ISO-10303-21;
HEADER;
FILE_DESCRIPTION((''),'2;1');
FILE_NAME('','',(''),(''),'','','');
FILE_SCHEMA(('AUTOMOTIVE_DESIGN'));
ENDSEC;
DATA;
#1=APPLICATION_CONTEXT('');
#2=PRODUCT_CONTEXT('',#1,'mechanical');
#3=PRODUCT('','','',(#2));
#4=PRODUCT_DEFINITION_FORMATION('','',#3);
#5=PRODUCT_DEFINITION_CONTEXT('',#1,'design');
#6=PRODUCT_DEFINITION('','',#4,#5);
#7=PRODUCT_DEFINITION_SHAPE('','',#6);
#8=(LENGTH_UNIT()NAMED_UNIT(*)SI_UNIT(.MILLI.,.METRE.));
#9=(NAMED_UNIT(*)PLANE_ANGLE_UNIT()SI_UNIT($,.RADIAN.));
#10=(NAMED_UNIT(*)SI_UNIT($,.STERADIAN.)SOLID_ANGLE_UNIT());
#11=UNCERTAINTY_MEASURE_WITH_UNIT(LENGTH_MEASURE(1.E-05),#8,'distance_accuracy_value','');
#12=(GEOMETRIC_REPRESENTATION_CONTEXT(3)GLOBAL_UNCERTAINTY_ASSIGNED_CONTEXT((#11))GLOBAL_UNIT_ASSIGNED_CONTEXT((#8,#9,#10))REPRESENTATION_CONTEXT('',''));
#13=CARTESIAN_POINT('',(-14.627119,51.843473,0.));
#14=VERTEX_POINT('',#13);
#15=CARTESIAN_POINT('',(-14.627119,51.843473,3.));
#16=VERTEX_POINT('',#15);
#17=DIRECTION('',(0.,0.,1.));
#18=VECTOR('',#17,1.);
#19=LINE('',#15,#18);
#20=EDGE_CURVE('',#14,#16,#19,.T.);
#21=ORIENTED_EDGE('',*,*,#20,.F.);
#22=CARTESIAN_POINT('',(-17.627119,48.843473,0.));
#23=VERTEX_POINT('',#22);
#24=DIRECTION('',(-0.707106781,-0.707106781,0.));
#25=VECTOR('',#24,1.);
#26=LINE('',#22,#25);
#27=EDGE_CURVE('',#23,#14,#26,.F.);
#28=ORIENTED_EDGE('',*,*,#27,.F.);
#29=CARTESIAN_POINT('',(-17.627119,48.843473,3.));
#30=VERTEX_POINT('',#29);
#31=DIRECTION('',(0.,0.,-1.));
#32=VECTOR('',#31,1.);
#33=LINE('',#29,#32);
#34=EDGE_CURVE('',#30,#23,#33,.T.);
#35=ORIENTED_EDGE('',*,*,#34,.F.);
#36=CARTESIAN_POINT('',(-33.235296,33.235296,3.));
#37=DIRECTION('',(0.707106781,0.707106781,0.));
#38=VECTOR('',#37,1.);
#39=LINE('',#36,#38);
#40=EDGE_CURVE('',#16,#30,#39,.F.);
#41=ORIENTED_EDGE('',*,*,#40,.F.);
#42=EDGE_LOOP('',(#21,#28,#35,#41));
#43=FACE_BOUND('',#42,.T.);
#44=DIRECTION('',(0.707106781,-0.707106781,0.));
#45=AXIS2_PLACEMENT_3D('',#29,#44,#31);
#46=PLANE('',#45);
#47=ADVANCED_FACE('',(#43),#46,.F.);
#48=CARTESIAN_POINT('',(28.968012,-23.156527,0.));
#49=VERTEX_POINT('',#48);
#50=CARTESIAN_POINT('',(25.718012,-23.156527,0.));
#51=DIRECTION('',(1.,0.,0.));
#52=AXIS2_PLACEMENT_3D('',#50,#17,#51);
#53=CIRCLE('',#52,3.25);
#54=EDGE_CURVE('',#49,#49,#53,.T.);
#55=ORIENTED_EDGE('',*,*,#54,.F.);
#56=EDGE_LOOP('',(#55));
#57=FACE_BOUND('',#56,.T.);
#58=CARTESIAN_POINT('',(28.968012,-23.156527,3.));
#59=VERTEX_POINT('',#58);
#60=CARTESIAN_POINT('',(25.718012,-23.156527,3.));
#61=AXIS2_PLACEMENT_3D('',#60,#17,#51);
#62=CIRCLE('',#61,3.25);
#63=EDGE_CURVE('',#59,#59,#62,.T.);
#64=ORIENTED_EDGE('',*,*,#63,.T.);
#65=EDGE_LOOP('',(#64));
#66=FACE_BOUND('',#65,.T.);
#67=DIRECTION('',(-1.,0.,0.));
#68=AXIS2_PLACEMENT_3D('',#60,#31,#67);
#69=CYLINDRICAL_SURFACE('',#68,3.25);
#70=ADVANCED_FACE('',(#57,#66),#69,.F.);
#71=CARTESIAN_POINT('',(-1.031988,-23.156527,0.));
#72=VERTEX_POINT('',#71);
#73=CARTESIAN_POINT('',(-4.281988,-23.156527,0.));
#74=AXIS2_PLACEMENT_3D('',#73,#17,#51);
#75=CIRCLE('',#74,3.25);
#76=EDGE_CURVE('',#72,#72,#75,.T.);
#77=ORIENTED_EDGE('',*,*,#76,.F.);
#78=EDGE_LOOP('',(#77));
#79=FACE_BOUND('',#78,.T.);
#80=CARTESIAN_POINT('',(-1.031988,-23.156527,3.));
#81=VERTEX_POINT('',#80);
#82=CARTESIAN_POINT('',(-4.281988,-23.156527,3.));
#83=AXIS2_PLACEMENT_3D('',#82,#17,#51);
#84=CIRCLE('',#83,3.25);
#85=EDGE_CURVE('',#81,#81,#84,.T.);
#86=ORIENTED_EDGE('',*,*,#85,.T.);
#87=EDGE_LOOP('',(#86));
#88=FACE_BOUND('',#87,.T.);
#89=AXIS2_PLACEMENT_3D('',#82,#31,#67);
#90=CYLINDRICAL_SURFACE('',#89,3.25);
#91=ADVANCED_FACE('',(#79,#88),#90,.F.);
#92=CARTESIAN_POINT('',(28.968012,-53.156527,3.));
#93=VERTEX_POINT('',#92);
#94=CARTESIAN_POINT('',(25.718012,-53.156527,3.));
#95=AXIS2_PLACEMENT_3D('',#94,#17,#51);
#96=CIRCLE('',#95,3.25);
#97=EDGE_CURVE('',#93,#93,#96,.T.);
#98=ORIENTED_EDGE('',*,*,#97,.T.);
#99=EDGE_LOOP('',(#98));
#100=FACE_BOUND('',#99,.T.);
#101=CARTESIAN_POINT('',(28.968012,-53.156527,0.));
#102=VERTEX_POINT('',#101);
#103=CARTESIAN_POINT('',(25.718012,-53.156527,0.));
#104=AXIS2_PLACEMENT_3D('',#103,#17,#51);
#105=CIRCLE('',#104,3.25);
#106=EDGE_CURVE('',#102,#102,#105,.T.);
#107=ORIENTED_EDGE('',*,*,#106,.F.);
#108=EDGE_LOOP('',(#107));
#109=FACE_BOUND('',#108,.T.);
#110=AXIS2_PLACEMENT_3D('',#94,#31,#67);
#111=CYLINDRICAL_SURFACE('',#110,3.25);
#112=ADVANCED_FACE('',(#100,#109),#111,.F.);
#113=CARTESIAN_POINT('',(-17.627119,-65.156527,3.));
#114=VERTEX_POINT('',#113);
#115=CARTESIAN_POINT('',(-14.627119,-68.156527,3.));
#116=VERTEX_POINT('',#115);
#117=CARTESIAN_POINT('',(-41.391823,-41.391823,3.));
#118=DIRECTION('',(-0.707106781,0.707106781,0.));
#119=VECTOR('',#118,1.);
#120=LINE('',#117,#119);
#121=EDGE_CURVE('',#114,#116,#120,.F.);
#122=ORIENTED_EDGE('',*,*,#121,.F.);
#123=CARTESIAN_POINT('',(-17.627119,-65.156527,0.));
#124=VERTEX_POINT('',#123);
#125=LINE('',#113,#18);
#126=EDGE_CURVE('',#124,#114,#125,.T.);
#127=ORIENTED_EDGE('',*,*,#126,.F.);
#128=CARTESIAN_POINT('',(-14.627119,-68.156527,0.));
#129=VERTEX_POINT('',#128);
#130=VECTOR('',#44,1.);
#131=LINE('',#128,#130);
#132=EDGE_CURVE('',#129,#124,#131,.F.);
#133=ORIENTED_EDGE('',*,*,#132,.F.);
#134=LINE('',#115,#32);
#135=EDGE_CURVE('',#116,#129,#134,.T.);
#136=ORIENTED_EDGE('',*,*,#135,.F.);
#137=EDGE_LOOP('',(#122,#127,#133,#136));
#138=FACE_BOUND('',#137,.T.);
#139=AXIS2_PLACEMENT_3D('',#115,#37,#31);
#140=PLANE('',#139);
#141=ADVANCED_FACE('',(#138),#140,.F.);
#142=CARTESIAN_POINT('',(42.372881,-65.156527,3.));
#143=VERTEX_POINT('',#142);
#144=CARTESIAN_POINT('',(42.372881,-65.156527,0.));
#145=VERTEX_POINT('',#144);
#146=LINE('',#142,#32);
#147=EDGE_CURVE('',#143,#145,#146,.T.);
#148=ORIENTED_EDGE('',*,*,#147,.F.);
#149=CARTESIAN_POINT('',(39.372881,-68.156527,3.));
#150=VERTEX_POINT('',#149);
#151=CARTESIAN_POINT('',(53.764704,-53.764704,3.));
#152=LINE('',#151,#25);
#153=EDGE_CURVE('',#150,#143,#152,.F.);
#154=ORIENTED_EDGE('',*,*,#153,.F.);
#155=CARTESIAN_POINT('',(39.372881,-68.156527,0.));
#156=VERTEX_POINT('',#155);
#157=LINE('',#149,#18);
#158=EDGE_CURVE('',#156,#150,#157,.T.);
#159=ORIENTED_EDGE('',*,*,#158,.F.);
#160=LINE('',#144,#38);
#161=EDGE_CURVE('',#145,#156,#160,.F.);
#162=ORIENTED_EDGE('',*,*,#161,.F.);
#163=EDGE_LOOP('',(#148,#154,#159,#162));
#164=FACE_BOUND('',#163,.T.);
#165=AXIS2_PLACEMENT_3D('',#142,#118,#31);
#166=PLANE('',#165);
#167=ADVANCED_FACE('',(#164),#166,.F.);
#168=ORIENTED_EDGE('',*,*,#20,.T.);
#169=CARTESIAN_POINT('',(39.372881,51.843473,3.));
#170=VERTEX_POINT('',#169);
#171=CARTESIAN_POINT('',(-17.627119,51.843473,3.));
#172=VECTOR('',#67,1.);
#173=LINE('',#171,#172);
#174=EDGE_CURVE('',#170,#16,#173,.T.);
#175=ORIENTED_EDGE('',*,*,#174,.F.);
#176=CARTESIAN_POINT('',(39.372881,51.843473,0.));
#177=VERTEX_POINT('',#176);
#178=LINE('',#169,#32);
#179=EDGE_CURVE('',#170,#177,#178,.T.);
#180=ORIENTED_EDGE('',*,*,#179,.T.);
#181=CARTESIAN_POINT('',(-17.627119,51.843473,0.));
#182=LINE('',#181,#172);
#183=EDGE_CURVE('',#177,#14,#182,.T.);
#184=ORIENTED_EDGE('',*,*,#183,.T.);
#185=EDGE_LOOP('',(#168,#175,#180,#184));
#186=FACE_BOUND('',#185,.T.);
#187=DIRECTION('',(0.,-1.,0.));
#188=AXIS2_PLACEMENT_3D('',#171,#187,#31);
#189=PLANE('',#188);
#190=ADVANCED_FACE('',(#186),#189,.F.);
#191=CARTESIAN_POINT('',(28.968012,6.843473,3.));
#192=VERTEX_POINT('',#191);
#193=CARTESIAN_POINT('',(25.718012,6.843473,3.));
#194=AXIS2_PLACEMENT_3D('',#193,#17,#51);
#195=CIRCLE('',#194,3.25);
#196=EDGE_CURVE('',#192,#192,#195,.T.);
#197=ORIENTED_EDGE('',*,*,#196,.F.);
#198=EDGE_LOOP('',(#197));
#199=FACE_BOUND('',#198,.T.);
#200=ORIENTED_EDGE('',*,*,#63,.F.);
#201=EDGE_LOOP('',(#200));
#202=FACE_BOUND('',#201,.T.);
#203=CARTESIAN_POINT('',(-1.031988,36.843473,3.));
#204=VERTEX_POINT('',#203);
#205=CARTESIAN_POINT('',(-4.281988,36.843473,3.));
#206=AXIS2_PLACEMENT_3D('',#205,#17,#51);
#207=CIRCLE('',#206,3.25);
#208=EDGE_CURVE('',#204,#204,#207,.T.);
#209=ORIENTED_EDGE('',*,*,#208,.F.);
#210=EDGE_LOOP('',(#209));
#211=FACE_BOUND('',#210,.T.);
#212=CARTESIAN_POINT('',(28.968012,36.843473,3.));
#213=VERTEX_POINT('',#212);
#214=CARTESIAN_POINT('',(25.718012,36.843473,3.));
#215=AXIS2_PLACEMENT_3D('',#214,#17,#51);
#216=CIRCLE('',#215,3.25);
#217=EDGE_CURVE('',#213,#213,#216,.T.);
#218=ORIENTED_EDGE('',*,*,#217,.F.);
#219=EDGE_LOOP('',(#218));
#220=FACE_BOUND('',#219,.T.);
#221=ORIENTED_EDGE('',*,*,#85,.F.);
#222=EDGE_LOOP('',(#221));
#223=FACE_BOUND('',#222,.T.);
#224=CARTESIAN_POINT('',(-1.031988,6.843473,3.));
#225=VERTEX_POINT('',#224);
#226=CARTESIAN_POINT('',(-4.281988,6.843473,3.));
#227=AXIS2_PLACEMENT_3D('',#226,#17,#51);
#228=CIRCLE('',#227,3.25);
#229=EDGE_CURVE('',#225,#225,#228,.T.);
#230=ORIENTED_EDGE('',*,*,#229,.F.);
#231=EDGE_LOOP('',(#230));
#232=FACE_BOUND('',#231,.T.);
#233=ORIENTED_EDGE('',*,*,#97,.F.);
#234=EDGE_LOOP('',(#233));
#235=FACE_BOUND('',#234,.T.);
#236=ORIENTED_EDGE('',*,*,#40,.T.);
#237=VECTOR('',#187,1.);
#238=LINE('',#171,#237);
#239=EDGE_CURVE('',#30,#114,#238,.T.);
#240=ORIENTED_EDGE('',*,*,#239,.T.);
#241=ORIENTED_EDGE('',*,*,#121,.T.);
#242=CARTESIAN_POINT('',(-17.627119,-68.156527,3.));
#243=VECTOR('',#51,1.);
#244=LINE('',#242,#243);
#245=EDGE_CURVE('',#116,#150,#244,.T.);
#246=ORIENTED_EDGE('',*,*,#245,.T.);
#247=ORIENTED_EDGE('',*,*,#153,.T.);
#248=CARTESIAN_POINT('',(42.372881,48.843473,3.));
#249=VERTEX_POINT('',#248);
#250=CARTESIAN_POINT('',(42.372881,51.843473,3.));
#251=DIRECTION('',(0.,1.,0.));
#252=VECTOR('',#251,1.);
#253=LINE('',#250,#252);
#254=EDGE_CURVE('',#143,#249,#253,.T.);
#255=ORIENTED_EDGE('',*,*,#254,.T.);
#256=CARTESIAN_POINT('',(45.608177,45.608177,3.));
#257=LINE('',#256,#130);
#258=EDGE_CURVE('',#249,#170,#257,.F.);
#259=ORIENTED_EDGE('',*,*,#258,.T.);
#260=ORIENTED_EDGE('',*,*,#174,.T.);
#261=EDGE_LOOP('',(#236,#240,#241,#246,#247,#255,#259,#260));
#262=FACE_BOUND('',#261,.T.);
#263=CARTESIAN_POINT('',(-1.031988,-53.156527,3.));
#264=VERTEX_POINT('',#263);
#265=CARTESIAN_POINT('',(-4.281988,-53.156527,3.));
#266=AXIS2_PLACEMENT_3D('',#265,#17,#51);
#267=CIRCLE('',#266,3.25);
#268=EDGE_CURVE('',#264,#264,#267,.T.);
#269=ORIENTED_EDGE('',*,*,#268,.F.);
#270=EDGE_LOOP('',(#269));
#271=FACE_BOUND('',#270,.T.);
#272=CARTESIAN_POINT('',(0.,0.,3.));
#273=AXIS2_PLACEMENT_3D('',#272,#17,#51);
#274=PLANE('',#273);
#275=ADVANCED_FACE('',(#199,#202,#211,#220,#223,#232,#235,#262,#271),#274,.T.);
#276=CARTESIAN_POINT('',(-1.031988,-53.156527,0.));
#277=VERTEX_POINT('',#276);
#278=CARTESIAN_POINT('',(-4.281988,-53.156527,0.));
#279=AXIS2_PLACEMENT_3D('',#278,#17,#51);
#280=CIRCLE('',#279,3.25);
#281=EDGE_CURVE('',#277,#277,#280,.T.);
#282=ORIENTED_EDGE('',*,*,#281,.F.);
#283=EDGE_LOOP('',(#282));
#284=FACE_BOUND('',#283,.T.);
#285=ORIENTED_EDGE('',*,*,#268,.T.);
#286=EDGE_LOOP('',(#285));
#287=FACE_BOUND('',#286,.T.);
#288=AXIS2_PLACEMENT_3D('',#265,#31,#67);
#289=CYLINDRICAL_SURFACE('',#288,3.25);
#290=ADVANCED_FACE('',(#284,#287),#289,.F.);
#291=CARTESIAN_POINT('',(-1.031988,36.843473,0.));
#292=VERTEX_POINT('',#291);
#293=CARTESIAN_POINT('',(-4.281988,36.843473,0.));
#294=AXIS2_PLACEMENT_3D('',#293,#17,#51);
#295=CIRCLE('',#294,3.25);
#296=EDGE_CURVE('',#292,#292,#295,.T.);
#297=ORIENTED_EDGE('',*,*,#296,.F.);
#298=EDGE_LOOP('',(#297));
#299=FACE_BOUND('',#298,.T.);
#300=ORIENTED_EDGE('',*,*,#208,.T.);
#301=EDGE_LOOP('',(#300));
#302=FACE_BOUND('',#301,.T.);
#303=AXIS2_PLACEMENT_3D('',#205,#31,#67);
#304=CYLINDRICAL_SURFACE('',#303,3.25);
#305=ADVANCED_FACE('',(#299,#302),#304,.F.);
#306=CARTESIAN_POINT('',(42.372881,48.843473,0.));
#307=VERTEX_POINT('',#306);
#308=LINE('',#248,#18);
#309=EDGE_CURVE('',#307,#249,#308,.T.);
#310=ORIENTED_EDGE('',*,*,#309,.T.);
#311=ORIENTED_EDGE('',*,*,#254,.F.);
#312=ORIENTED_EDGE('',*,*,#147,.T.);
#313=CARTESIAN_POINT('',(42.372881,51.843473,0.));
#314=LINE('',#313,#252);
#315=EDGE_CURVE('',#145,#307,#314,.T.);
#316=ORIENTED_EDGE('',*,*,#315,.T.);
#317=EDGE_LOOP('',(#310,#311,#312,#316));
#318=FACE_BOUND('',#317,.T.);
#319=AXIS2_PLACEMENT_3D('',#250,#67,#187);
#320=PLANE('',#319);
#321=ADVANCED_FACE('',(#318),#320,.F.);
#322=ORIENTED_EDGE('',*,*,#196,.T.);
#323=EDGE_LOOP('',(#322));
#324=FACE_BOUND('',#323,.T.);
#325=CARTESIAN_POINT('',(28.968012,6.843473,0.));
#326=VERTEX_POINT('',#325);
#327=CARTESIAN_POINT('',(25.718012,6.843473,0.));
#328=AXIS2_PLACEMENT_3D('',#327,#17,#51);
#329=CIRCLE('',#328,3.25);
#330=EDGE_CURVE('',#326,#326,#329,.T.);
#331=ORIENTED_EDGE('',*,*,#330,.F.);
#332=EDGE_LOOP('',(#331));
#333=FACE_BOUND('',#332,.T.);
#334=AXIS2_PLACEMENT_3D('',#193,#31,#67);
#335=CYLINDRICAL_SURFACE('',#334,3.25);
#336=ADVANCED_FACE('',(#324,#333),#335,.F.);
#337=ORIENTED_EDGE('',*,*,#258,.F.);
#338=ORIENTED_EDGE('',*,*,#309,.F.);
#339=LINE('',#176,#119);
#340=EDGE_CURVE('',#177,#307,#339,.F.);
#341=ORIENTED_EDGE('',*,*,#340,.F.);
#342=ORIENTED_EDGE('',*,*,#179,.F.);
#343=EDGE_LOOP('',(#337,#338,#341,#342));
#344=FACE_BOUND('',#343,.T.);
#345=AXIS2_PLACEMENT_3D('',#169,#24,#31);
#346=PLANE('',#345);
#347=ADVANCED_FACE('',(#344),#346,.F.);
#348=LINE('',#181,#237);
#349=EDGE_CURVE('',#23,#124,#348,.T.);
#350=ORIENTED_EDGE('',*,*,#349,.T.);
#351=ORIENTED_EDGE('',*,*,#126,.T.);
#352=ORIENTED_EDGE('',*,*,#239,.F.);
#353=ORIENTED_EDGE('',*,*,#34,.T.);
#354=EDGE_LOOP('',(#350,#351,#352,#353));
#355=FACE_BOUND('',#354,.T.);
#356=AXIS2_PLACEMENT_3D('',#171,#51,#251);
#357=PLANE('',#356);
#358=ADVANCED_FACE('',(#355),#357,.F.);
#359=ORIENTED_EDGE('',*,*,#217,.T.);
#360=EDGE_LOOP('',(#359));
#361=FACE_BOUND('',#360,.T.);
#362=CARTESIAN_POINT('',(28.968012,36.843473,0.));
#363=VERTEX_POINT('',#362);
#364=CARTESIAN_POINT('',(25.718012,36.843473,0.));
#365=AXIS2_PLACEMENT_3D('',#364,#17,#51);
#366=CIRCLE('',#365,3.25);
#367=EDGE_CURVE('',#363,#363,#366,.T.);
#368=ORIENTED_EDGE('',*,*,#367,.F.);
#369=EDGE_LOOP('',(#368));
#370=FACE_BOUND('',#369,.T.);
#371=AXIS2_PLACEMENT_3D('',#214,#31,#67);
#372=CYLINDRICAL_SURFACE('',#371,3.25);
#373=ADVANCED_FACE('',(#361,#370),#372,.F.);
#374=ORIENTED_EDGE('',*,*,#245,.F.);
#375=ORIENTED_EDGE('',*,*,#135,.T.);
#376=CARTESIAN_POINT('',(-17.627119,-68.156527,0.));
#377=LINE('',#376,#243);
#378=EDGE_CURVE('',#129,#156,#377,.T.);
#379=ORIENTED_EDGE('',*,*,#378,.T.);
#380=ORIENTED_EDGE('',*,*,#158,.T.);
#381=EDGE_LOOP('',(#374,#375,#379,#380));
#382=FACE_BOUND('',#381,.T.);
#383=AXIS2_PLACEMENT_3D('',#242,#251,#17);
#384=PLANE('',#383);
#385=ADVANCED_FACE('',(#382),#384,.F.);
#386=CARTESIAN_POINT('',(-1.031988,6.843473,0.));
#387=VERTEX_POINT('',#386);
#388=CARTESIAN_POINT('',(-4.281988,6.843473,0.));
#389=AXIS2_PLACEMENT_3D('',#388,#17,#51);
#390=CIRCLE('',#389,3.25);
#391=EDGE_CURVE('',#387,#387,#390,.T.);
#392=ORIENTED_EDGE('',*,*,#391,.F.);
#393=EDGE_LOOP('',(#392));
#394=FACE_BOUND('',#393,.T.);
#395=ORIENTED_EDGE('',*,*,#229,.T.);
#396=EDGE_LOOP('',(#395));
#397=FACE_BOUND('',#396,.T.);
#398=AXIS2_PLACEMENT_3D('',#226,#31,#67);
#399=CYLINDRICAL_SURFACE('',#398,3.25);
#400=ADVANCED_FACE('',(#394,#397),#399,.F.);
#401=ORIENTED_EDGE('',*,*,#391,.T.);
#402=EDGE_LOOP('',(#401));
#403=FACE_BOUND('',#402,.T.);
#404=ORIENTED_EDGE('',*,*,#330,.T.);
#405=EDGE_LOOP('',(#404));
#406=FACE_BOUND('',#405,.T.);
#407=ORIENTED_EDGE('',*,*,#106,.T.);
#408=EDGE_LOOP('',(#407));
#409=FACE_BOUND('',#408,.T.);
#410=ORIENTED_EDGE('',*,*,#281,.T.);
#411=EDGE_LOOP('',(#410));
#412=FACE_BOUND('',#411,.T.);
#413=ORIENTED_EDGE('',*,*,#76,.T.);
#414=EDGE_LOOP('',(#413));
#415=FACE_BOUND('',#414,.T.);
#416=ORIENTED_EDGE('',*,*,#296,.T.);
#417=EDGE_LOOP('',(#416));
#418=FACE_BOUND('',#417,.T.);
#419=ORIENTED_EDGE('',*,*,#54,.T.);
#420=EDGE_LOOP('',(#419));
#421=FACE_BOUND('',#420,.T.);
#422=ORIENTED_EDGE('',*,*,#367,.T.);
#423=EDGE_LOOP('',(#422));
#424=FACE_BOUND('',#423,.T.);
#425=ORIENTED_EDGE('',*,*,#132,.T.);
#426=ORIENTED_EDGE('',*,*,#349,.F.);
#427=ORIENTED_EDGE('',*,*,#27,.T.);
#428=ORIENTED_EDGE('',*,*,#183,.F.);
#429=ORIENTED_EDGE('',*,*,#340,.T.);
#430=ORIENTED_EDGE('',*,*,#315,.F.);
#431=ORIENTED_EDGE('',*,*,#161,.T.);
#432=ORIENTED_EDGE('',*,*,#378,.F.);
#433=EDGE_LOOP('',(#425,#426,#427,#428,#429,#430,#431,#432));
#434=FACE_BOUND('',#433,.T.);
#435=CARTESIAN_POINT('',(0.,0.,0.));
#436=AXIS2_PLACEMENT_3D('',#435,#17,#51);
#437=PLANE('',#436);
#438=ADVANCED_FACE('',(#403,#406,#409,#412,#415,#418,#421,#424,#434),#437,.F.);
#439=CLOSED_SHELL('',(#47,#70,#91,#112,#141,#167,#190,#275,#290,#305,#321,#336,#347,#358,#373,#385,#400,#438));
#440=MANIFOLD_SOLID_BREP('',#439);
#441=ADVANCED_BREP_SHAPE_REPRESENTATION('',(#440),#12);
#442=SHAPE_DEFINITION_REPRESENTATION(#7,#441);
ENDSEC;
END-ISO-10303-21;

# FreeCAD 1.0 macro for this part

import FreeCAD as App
import Part
import Sketcher
Q = App.Units.Quantity


def edges_at(feature, points):
    """Names of the edges that pass closest to the given points."""
    edges = feature.Shape.Edges
    near = lambda p: min(range(len(edges)), key=lambda i: edges[i].distToShape(Part.Vertex(*p))[0])
    return sorted({f"Edge{near(p) + 1}" for p in points})

doc = App.newDocument("Part")
body = doc.addObject("PartDesign::Body", "Body")

sketch1 = body.newObject("Sketcher::SketchObject", "Sketch")
sketch1.AttachmentSupport = (doc.getObject("XY_Plane"), [""])
sketch1.MapMode = "FlatFace"
sketch1.addGeometry(Part.LineSegment(App.Vector(-17.6, 51.8, 0), App.Vector(-17.6, -68.2, 0)), False)
sketch1.addGeometry(Part.LineSegment(App.Vector(-17.6, -68.2, 0), App.Vector(42.4, -68.2, 0)), False)
sketch1.addGeometry(Part.LineSegment(App.Vector(42.4, -68.2, 0), App.Vector(42.4, 51.8, 0)), False)
sketch1.addGeometry(Part.LineSegment(App.Vector(42.4, 51.8, 0), App.Vector(-17.6, 51.8, 0)), False)
sketch1.addGeometry(Part.Circle(App.Vector(-4.3, -53.2, 0), App.Vector(0, 0, 1), 3.2), False)
sketch1.addGeometry(Part.Circle(App.Vector(-4.3, -23.2, 0), App.Vector(0, 0, 1), 3.2), False)
sketch1.addGeometry(Part.Circle(App.Vector(25.7, -53.2, 0), App.Vector(0, 0, 1), 3.2), False)
sketch1.addGeometry(Part.Circle(App.Vector(25.7, -23.2, 0), App.Vector(0, 0, 1), 3.2), False)
sketch1.addGeometry(Part.Circle(App.Vector(-4.3, 6.8, 0), App.Vector(0, 0, 1), 3.2), False)
sketch1.addGeometry(Part.Circle(App.Vector(-4.3, 36.8, 0), App.Vector(0, 0, 1), 3.2), False)
sketch1.addGeometry(Part.Circle(App.Vector(25.7, 6.8, 0), App.Vector(0, 0, 1), 3.2), False)
sketch1.addGeometry(Part.Circle(App.Vector(25.7, 36.8, 0), App.Vector(0, 0, 1), 3.2), False)
sketch1.addConstraint(Sketcher.Constraint("Coincident", 0, 2, 1, 1))
sketch1.addConstraint(Sketcher.Constraint("Coincident", 1, 2, 2, 1))
sketch1.addConstraint(Sketcher.Constraint("Coincident", 2, 2, 3, 1))
sketch1.addConstraint(Sketcher.Constraint("Coincident", 3, 2, 0, 1))
sketch1.addConstraint(Sketcher.Constraint("Vertical", 0))
sketch1.addConstraint(Sketcher.Constraint("Horizontal", 1))
sketch1.addConstraint(Sketcher.Constraint("Vertical", 2))
sketch1.addConstraint(Sketcher.Constraint("Horizontal", 3))
sketch1.addConstraint(Sketcher.Constraint("Equal", 4, 5))
sketch1.addConstraint(Sketcher.Constraint("Equal", 5, 6))
sketch1.addConstraint(Sketcher.Constraint("Equal", 6, 7))
sketch1.addConstraint(Sketcher.Constraint("Equal", 7, 8))
sketch1.addConstraint(Sketcher.Constraint("Equal", 8, 9))
sketch1.addConstraint(Sketcher.Constraint("Equal", 9, 10))
sketch1.addConstraint(Sketcher.Constraint("Equal", 10, 11))
sketch1.addConstraint(Sketcher.Constraint("Horizontal", 4, 3, 6, 3))
sketch1.addConstraint(Sketcher.Constraint("Horizontal", 5, 3, 7, 3))
sketch1.addConstraint(Sketcher.Constraint("Horizontal", 8, 3, 10, 3))
sketch1.addConstraint(Sketcher.Constraint("Horizontal", 9, 3, 11, 3))
sketch1.addConstraint(Sketcher.Constraint("Vertical", 4, 3, 5, 3))
sketch1.addConstraint(Sketcher.Constraint("Vertical", 6, 3, 7, 3))
sketch1.addConstraint(Sketcher.Constraint("Vertical", 5, 3, 8, 3))
sketch1.addConstraint(Sketcher.Constraint("Vertical", 8, 3, 9, 3))
sketch1.addConstraint(Sketcher.Constraint("Vertical", 7, 3, 10, 3))
sketch1.addConstraint(Sketcher.Constraint("Vertical", 10, 3, 11, 3))
sketch1.addConstraint(Sketcher.Constraint("Diameter", 4, Q("6.5 mm")))
sketch1.addConstraint(Sketcher.Constraint("DistanceX", 1, 1, 1, 2, Q("60 mm")))
sketch1.addConstraint(Sketcher.Constraint("DistanceY", 0, 2, 0, 1, Q("120 mm")))
sketch1.addConstraint(Sketcher.Constraint("DistanceY", 4, 3, 5, 3, Q("30 mm")))
sketch1.addConstraint(Sketcher.Constraint("DistanceX", 4, 3, 6, 3, Q("30 mm")))
sketch1.addConstraint(Sketcher.Constraint("DistanceY", 5, 3, 8, 3, Q("30 mm")))
sketch1.addConstraint(Sketcher.Constraint("DistanceY", 8, 3, 9, 3, Q("30 mm")))
sketch1.addConstraint(Sketcher.Constraint("DistanceY", 0, 2, 4, 3, Q("15 mm")))
sketch1.addConstraint(Sketcher.Constraint("DistanceX", 0, 2, -1, 1, Q("17.627119 mm")))
sketch1.addConstraint(Sketcher.Constraint("DistanceX", 0, 2, 4, 3, Q("13.345131 mm")))
sketch1.addConstraint(Sketcher.Constraint("DistanceY", 4, 3, -1, 1, Q("53.156527 mm")))
pad1 = body.newObject("PartDesign::Pad", "Pad")
pad1.Profile = sketch1
pad1.Length = 3
doc.recompute()

chamfer = body.newObject("PartDesign::Chamfer", "Chamfer")
chamfer.Base = (pad1, edges_at(pad1, [
    (-17.627, 51.843, 1.5),
    (42.373, 51.843, 1.5),
    (42.373, -68.157, 1.5),
    (-17.627, -68.157, 1.5),
]))
chamfer.Size = 3

doc.recompute()
